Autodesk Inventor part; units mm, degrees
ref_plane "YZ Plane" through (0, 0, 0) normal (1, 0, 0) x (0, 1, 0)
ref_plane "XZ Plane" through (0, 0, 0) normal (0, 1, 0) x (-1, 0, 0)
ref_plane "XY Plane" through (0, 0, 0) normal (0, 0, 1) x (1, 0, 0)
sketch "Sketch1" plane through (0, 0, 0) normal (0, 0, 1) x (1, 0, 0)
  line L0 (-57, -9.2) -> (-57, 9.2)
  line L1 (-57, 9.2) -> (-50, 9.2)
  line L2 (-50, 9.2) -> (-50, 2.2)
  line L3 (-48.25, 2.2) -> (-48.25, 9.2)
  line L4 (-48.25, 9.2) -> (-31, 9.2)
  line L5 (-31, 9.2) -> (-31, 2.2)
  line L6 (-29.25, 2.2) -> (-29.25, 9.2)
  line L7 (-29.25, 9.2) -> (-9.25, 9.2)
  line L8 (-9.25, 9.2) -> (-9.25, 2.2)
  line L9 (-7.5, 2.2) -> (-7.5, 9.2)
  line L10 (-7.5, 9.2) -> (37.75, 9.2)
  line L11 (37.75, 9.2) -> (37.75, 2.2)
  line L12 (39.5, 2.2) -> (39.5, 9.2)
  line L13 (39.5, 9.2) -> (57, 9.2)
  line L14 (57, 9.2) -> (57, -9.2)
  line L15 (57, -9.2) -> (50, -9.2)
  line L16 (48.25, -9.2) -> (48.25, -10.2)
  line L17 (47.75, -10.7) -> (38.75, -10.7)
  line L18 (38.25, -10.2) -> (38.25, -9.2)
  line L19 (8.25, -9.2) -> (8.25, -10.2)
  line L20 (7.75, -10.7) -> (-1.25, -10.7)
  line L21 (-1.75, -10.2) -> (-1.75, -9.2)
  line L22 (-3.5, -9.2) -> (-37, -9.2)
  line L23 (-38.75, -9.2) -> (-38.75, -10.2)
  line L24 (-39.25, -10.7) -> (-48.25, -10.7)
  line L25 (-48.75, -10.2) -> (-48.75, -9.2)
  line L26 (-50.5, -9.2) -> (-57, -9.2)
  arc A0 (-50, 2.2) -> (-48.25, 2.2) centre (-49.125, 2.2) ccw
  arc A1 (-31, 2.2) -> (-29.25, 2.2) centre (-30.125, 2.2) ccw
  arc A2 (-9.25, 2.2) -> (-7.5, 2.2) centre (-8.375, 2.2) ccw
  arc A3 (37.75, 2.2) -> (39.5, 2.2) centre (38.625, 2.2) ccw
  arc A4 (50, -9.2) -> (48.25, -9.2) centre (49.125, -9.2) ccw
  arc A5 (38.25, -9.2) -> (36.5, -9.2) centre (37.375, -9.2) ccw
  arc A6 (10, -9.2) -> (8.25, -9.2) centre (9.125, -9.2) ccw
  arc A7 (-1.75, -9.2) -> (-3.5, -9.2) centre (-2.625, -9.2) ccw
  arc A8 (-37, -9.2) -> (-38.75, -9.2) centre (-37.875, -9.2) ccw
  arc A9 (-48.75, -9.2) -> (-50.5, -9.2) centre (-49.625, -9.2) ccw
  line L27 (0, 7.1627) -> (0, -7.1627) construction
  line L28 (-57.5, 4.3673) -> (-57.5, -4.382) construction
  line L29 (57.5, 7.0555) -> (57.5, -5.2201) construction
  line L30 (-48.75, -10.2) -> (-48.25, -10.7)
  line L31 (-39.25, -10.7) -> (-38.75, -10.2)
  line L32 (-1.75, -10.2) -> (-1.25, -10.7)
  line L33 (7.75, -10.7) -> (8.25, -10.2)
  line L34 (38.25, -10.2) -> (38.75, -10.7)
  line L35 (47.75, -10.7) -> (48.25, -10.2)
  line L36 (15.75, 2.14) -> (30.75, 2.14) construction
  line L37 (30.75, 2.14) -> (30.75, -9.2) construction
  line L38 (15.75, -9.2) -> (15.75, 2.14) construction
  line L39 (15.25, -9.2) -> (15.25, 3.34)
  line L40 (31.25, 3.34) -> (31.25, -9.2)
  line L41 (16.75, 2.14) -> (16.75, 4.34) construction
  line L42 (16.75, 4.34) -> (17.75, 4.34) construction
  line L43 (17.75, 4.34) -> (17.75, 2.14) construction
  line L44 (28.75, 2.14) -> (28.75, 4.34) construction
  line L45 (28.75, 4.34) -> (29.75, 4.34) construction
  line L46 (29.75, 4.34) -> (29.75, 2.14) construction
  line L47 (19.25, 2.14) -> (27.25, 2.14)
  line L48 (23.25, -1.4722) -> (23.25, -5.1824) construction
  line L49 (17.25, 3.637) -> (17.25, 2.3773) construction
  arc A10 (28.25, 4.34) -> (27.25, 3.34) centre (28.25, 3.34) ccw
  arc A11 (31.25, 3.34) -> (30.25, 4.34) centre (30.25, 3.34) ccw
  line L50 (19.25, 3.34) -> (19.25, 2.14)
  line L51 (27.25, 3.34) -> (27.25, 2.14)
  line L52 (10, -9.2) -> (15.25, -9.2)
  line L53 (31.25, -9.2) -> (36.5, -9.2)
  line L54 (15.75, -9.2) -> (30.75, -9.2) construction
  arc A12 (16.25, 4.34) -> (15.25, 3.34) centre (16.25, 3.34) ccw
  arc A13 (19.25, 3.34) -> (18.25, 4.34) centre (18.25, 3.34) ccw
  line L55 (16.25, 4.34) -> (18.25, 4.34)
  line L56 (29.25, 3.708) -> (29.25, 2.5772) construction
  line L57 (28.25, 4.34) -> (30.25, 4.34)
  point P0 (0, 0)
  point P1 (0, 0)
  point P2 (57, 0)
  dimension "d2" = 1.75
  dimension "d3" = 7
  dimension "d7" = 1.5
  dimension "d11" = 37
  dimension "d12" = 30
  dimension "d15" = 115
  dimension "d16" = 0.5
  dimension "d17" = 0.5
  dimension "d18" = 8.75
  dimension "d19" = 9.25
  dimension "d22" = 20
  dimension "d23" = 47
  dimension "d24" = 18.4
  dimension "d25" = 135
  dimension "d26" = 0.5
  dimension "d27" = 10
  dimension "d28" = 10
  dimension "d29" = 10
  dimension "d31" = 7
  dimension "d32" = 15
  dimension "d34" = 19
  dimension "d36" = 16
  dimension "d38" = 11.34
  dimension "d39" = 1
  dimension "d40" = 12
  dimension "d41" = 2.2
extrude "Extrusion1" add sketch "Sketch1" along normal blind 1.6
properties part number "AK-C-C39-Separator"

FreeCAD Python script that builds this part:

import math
import FreeCAD as App
import Part
import Sketcher
from FreeCAD import Vector

doc = App.newDocument("Part")
body = doc.addObject("PartDesign::Body", "Body")

# Sketch on XY plane
sketch1 = doc.addObject("Sketcher::SketchObject", "Sketch")
body.addObject(sketch1)
sketch1.AttachmentSupport = (doc.XY_Plane, [""])
sketch1.MapMode = "FlatFace"
sketch1.addGeometry(Part.LineSegment(Vector(-57, 9.2, 0), Vector(-57, -9.2, 0)), False)
sketch1.addGeometry(Part.LineSegment(Vector(-57, -9.2, 0), Vector(-50.5, -9.2, 0)), False)
sketch1.addGeometry(Part.ArcOfCircle(Part.Circle(Vector(-49.6, -9.2, 0), Vector(0, 0, 1), 0.9), math.radians(0), math.radians(180)), False)
sketch1.addGeometry(Part.LineSegment(Vector(-48.8, -9.2, 0), Vector(-48.8, -10.2, 0)), False)
sketch1.addGeometry(Part.LineSegment(Vector(-48.8, -10.2, 0), Vector(-48.2, -10.7, 0)), False)
sketch1.addGeometry(Part.LineSegment(Vector(-48.2, -10.7, 0), Vector(-39.2, -10.7, 0)), False)
sketch1.addGeometry(Part.LineSegment(Vector(-39.2, -10.7, 0), Vector(-38.8, -10.2, 0)), False)
sketch1.addGeometry(Part.LineSegment(Vector(-38.8, -10.2, 0), Vector(-38.8, -9.2, 0)), False)
sketch1.addGeometry(Part.ArcOfCircle(Part.Circle(Vector(-37.9, -9.2, 0), Vector(0, 0, 1), 0.9), math.radians(0), math.radians(180)), False)
sketch1.addGeometry(Part.LineSegment(Vector(-37, -9.2, 0), Vector(-3.5, -9.2, 0)), False)
sketch1.addGeometry(Part.ArcOfCircle(Part.Circle(Vector(-2.6, -9.2, 0), Vector(0, 0, 1), 0.9), math.radians(0), math.radians(180)), False)
sketch1.addGeometry(Part.LineSegment(Vector(-1.8, -9.2, 0), Vector(-1.8, -10.2, 0)), False)
sketch1.addGeometry(Part.LineSegment(Vector(-1.8, -10.2, 0), Vector(-1.2, -10.7, 0)), False)
sketch1.addGeometry(Part.LineSegment(Vector(-1.2, -10.7, 0), Vector(7.8, -10.7, 0)), False)
sketch1.addGeometry(Part.LineSegment(Vector(7.8, -10.7, 0), Vector(8.2, -10.2, 0)), False)
sketch1.addGeometry(Part.LineSegment(Vector(8.2, -10.2, 0), Vector(8.2, -9.2, 0)), False)
sketch1.addGeometry(Part.ArcOfCircle(Part.Circle(Vector(9.1, -9.2, 0), Vector(0, 0, 1), 0.9), math.radians(0), math.radians(180)), False)
sketch1.addGeometry(Part.LineSegment(Vector(10, -9.2, 0), Vector(15.2, -9.2, 0)), False)
sketch1.addGeometry(Part.LineSegment(Vector(15.2, -9.2, 0), Vector(15.2, 3.3, 0)), False)
sketch1.addGeometry(Part.ArcOfCircle(Part.Circle(Vector(16.2, 3.3, 0), Vector(0, 0, 1), 1), math.radians(90), math.radians(180)), False)
sketch1.addGeometry(Part.LineSegment(Vector(16.2, 4.3, 0), Vector(18.2, 4.3, 0)), False)
sketch1.addGeometry(Part.ArcOfCircle(Part.Circle(Vector(18.2, 3.3, 0), Vector(0, 0, 1), 1), math.radians(0), math.radians(90)), False)
sketch1.addGeometry(Part.LineSegment(Vector(19.2, 3.3, 0), Vector(19.2, 2.1, 0)), False)
sketch1.addGeometry(Part.LineSegment(Vector(19.2, 2.1, 0), Vector(27.2, 2.1, 0)), False)
sketch1.addGeometry(Part.LineSegment(Vector(27.2, 2.1, 0), Vector(27.2, 3.3, 0)), False)
sketch1.addGeometry(Part.ArcOfCircle(Part.Circle(Vector(28.2, 3.3, 0), Vector(0, 0, 1), 1), math.radians(90), math.radians(180)), False)
sketch1.addGeometry(Part.LineSegment(Vector(28.2, 4.3, 0), Vector(30.2, 4.3, 0)), False)
sketch1.addGeometry(Part.ArcOfCircle(Part.Circle(Vector(30.2, 3.3, 0), Vector(0, 0, 1), 1), math.radians(0), math.radians(90)), False)
sketch1.addGeometry(Part.LineSegment(Vector(31.2, 3.3, 0), Vector(31.2, -9.2, 0)), False)
sketch1.addGeometry(Part.LineSegment(Vector(31.2, -9.2, 0), Vector(36.5, -9.2, 0)), False)
sketch1.addGeometry(Part.ArcOfCircle(Part.Circle(Vector(37.4, -9.2, 0), Vector(0, 0, 1), 0.9), math.radians(0), math.radians(180)), False)
sketch1.addGeometry(Part.LineSegment(Vector(38.2, -9.2, 0), Vector(38.2, -10.2, 0)), False)
sketch1.addGeometry(Part.LineSegment(Vector(38.2, -10.2, 0), Vector(38.8, -10.7, 0)), False)
sketch1.addGeometry(Part.LineSegment(Vector(38.8, -10.7, 0), Vector(47.8, -10.7, 0)), False)
sketch1.addGeometry(Part.LineSegment(Vector(47.8, -10.7, 0), Vector(48.2, -10.2, 0)), False)
sketch1.addGeometry(Part.LineSegment(Vector(48.2, -10.2, 0), Vector(48.2, -9.2, 0)), False)
sketch1.addGeometry(Part.ArcOfCircle(Part.Circle(Vector(49.1, -9.2, 0), Vector(0, 0, 1), 0.9), math.radians(0), math.radians(180)), False)
sketch1.addGeometry(Part.LineSegment(Vector(50, -9.2, 0), Vector(57, -9.2, 0)), False)
sketch1.addGeometry(Part.LineSegment(Vector(57, -9.2, 0), Vector(57, 9.2, 0)), False)
sketch1.addGeometry(Part.LineSegment(Vector(57, 9.2, 0), Vector(39.5, 9.2, 0)), False)
sketch1.addGeometry(Part.LineSegment(Vector(39.5, 9.2, 0), Vector(39.5, 2.2, 0)), False)
sketch1.addGeometry(Part.ArcOfCircle(Part.Circle(Vector(38.6, 2.2, 0), Vector(0, 0, 1), 0.9), math.radians(180), math.radians(360)), False)
sketch1.addGeometry(Part.LineSegment(Vector(37.8, 2.2, 0), Vector(37.8, 9.2, 0)), False)
sketch1.addGeometry(Part.LineSegment(Vector(37.8, 9.2, 0), Vector(-7.5, 9.2, 0)), False)
sketch1.addGeometry(Part.LineSegment(Vector(-7.5, 9.2, 0), Vector(-7.5, 2.2, 0)), False)
sketch1.addGeometry(Part.ArcOfCircle(Part.Circle(Vector(-8.4, 2.2, 0), Vector(0, 0, 1), 0.9), math.radians(180), math.radians(360)), False)
sketch1.addGeometry(Part.LineSegment(Vector(-9.2, 2.2, 0), Vector(-9.2, 9.2, 0)), False)
sketch1.addGeometry(Part.LineSegment(Vector(-9.2, 9.2, 0), Vector(-29.2, 9.2, 0)), False)
sketch1.addGeometry(Part.LineSegment(Vector(-29.2, 9.2, 0), Vector(-29.2, 2.2, 0)), False)
sketch1.addGeometry(Part.ArcOfCircle(Part.Circle(Vector(-30.1, 2.2, 0), Vector(0, 0, 1), 0.9), math.radians(180), math.radians(360)), False)
sketch1.addGeometry(Part.LineSegment(Vector(-31, 2.2, 0), Vector(-31, 9.2, 0)), False)
sketch1.addGeometry(Part.LineSegment(Vector(-31, 9.2, 0), Vector(-48.2, 9.2, 0)), False)
sketch1.addGeometry(Part.LineSegment(Vector(-48.2, 9.2, 0), Vector(-48.2, 2.2, 0)), False)
sketch1.addGeometry(Part.ArcOfCircle(Part.Circle(Vector(-49.1, 2.2, 0), Vector(0, 0, 1), 0.9), math.radians(180), math.radians(360)), False)
sketch1.addGeometry(Part.LineSegment(Vector(-50, 2.2, 0), Vector(-50, 9.2, 0)), False)
sketch1.addGeometry(Part.LineSegment(Vector(-50, 9.2, 0), Vector(-57, 9.2, 0)), False)
sketch1.addConstraint(Sketcher.Constraint("Coincident", 0, 2, 1, 1))
sketch1.addConstraint(Sketcher.Constraint("Coincident", 1, 2, 2, 2))
sketch1.addConstraint(Sketcher.Constraint("Tangent", 2, 1, 3, 1))
sketch1.addConstraint(Sketcher.Constraint("Coincident", 3, 2, 4, 1))
sketch1.addConstraint(Sketcher.Constraint("Coincident", 4, 2, 5, 1))
sketch1.addConstraint(Sketcher.Constraint("Coincident", 5, 2, 6, 1))
sketch1.addConstraint(Sketcher.Constraint("Coincident", 6, 2, 7, 1))
sketch1.addConstraint(Sketcher.Constraint("Tangent", 7, 2, 8, 2))
sketch1.addConstraint(Sketcher.Constraint("Coincident", 8, 1, 9, 1))
sketch1.addConstraint(Sketcher.Constraint("Coincident", 9, 2, 10, 2))
sketch1.addConstraint(Sketcher.Constraint("Tangent", 10, 1, 11, 1))
sketch1.addConstraint(Sketcher.Constraint("Coincident", 11, 2, 12, 1))
sketch1.addConstraint(Sketcher.Constraint("Coincident", 12, 2, 13, 1))
sketch1.addConstraint(Sketcher.Constraint("Coincident", 13, 2, 14, 1))
sketch1.addConstraint(Sketcher.Constraint("Coincident", 14, 2, 15, 1))
sketch1.addConstraint(Sketcher.Constraint("Tangent", 15, 2, 16, 2))
sketch1.addConstraint(Sketcher.Constraint("Coincident", 16, 1, 17, 1))
sketch1.addConstraint(Sketcher.Constraint("Coincident", 17, 2, 18, 1))
sketch1.addConstraint(Sketcher.Constraint("Tangent", 18, 2, 19, 2))
sketch1.addConstraint(Sketcher.Constraint("Tangent", 19, 1, 20, 1))
sketch1.addConstraint(Sketcher.Constraint("Tangent", 20, 2, 21, 2))
sketch1.addConstraint(Sketcher.Constraint("Tangent", 21, 1, 22, 1))
sketch1.addConstraint(Sketcher.Constraint("Coincident", 22, 2, 23, 1))
sketch1.addConstraint(Sketcher.Constraint("Coincident", 23, 2, 24, 1))
sketch1.addConstraint(Sketcher.Constraint("Tangent", 24, 2, 25, 2))
sketch1.addConstraint(Sketcher.Constraint("Tangent", 25, 1, 26, 1))
sketch1.addConstraint(Sketcher.Constraint("Tangent", 26, 2, 27, 2))
sketch1.addConstraint(Sketcher.Constraint("Tangent", 27, 1, 28, 1))
sketch1.addConstraint(Sketcher.Constraint("Coincident", 28, 2, 29, 1))
sketch1.addConstraint(Sketcher.Constraint("Coincident", 29, 2, 30, 2))
sketch1.addConstraint(Sketcher.Constraint("Tangent", 30, 1, 31, 1))
sketch1.addConstraint(Sketcher.Constraint("Coincident", 31, 2, 32, 1))
sketch1.addConstraint(Sketcher.Constraint("Coincident", 32, 2, 33, 1))
sketch1.addConstraint(Sketcher.Constraint("Coincident", 33, 2, 34, 1))
sketch1.addConstraint(Sketcher.Constraint("Coincident", 34, 2, 35, 1))
sketch1.addConstraint(Sketcher.Constraint("Tangent", 35, 2, 36, 2))
sketch1.addConstraint(Sketcher.Constraint("Coincident", 36, 1, 37, 1))
sketch1.addConstraint(Sketcher.Constraint("Coincident", 37, 2, 38, 1))
sketch1.addConstraint(Sketcher.Constraint("Coincident", 38, 2, 39, 1))
sketch1.addConstraint(Sketcher.Constraint("Coincident", 39, 2, 40, 1))
sketch1.addConstraint(Sketcher.Constraint("Tangent", 40, 2, 41, 2))
sketch1.addConstraint(Sketcher.Constraint("Tangent", 41, 1, 42, 1))
sketch1.addConstraint(Sketcher.Constraint("Coincident", 42, 2, 43, 1))
sketch1.addConstraint(Sketcher.Constraint("Coincident", 43, 2, 44, 1))
sketch1.addConstraint(Sketcher.Constraint("Tangent", 44, 2, 45, 2))
sketch1.addConstraint(Sketcher.Constraint("Tangent", 45, 1, 46, 1))
sketch1.addConstraint(Sketcher.Constraint("Coincident", 46, 2, 47, 1))
sketch1.addConstraint(Sketcher.Constraint("Coincident", 47, 2, 48, 1))
sketch1.addConstraint(Sketcher.Constraint("Tangent", 48, 2, 49, 2))
sketch1.addConstraint(Sketcher.Constraint("Tangent", 49, 1, 50, 1))
sketch1.addConstraint(Sketcher.Constraint("Coincident", 50, 2, 51, 1))
sketch1.addConstraint(Sketcher.Constraint("Coincident", 51, 2, 52, 1))
sketch1.addConstraint(Sketcher.Constraint("Tangent", 52, 2, 53, 2))
sketch1.addConstraint(Sketcher.Constraint("Tangent", 53, 1, 54, 1))
sketch1.addConstraint(Sketcher.Constraint("Coincident", 54, 2, 55, 1))
sketch1.addConstraint(Sketcher.Constraint("Coincident", 55, 2, 0, 1))
sketch1.addConstraint(Sketcher.Constraint("Vertical", 0))
sketch1.addConstraint(Sketcher.Constraint("Horizontal", 1))
sketch1.addConstraint(Sketcher.Constraint("Vertical", 3))
sketch1.addConstraint(Sketcher.Constraint("Horizontal", 5))
sketch1.addConstraint(Sketcher.Constraint("Vertical", 7))
sketch1.addConstraint(Sketcher.Constraint("Horizontal", 9))
sketch1.addConstraint(Sketcher.Constraint("Vertical", 11))
sketch1.addConstraint(Sketcher.Constraint("Horizontal", 13))
sketch1.addConstraint(Sketcher.Constraint("Vertical", 15))
sketch1.addConstraint(Sketcher.Constraint("Horizontal", 17))
sketch1.addConstraint(Sketcher.Constraint("Vertical", 18))
sketch1.addConstraint(Sketcher.Constraint("Horizontal", 20))
sketch1.addConstraint(Sketcher.Constraint("Vertical", 22))
sketch1.addConstraint(Sketcher.Constraint("Horizontal", 23))
sketch1.addConstraint(Sketcher.Constraint("Vertical", 24))
sketch1.addConstraint(Sketcher.Constraint("Horizontal", 26))
sketch1.addConstraint(Sketcher.Constraint("Vertical", 28))
sketch1.addConstraint(Sketcher.Constraint("Horizontal", 29))
sketch1.addConstraint(Sketcher.Constraint("Vertical", 31))
sketch1.addConstraint(Sketcher.Constraint("Horizontal", 33))
sketch1.addConstraint(Sketcher.Constraint("Vertical", 35))
sketch1.addConstraint(Sketcher.Constraint("Horizontal", 37))
sketch1.addConstraint(Sketcher.Constraint("Vertical", 38))
sketch1.addConstraint(Sketcher.Constraint("Horizontal", 39))
sketch1.addConstraint(Sketcher.Constraint("Vertical", 40))
sketch1.addConstraint(Sketcher.Constraint("Vertical", 42))
sketch1.addConstraint(Sketcher.Constraint("Horizontal", 43))
sketch1.addConstraint(Sketcher.Constraint("Vertical", 44))
sketch1.addConstraint(Sketcher.Constraint("Vertical", 46))
sketch1.addConstraint(Sketcher.Constraint("Horizontal", 47))
sketch1.addConstraint(Sketcher.Constraint("Vertical", 48))
sketch1.addConstraint(Sketcher.Constraint("Vertical", 50))
sketch1.addConstraint(Sketcher.Constraint("Horizontal", 51))
sketch1.addConstraint(Sketcher.Constraint("Vertical", 52))
sketch1.addConstraint(Sketcher.Constraint("Vertical", 54))
sketch1.addConstraint(Sketcher.Constraint("Horizontal", 55))
sketch1.addConstraint(Sketcher.Constraint("Equal", 2, 8))
sketch1.addConstraint(Sketcher.Constraint("Equal", 8, 10))
sketch1.addConstraint(Sketcher.Constraint("Equal", 10, 16))
sketch1.addConstraint(Sketcher.Constraint("Equal", 19, 21))
sketch1.addConstraint(Sketcher.Constraint("Equal", 21, 25))
sketch1.addConstraint(Sketcher.Constraint("Equal", 25, 27))
sketch1.addConstraint(Sketcher.Constraint("Equal", 16, 30))
sketch1.addConstraint(Sketcher.Constraint("Equal", 30, 36))
sketch1.addConstraint(Sketcher.Constraint("Equal", 36, 41))
sketch1.addConstraint(Sketcher.Constraint("Equal", 41, 45))
sketch1.addConstraint(Sketcher.Constraint("Equal", 45, 49))
sketch1.addConstraint(Sketcher.Constraint("Equal", 49, 53))
sketch1.addConstraint(Sketcher.Constraint("Symmetric", 0, 2, 38, 2, -1, 1))
sketch1.addConstraint(Sketcher.Constraint("Symmetric", 35, 2, 51, 2, -1, 1))
sketch1.addConstraint(Sketcher.Constraint("Perpendicular", 4, 6))
sketch1.addConstraint(Sketcher.Constraint("Perpendicular", 6, 12))
sketch1.addConstraint(Sketcher.Constraint("Perpendicular", 12, 14))
sketch1.addConstraint(Sketcher.Constraint("Perpendicular", 14, 32))
sketch1.addConstraint(Sketcher.Constraint("Perpendicular", 32, 34))
sketch1.addConstraint(Sketcher.Constraint("Horizontal", 2, 3, 8, 3))
sketch1.addConstraint(Sketcher.Constraint("Horizontal", 8, 3, 10, 3))
sketch1.addConstraint(Sketcher.Constraint("Horizontal", 10, 3, 16, 3))
sketch1.addConstraint(Sketcher.Constraint("Horizontal", 21, 3, 25, 3))
sketch1.addConstraint(Sketcher.Constraint("Horizontal", 16, 3, 30, 3))
sketch1.addConstraint(Sketcher.Constraint("Horizontal", 30, 3, 36, 3))
sketch1.addConstraint(Sketcher.Constraint("Horizontal", 41, 3, 45, 3))
sketch1.addConstraint(Sketcher.Constraint("Horizontal", 45, 3, 49, 3))
sketch1.addConstraint(Sketcher.Constraint("Horizontal", 49, 3, 53, 3))
sketch1.addConstraint(Sketcher.Constraint("Horizontal", 36, 3, 0, 2))
sketch1.addConstraint(Sketcher.Constraint("Horizontal", 3, 2, 6, 2))
sketch1.addConstraint(Sketcher.Constraint("Horizontal", 7, 2, 8, 1))
sketch1.addConstraint(Sketcher.Constraint("Horizontal", 6, 2, 11, 2))
sketch1.addConstraint(Sketcher.Constraint("Horizontal", 5, 2, 12, 2))
sketch1.addConstraint(Sketcher.Constraint("Horizontal", 11, 2, 14, 2))
sketch1.addConstraint(Sketcher.Constraint("Horizontal", 15, 2, 16, 1))
sketch1.addConstraint(Sketcher.Constraint("Horizontal", 17, 2, 28, 2))
sketch1.addConstraint(Sketcher.Constraint("Horizontal", 14, 2, 31, 2))
sketch1.addConstraint(Sketcher.Constraint("Horizontal", 13, 2, 32, 2))
sketch1.addConstraint(Sketcher.Constraint("Horizontal", 31, 2, 34, 2))
sketch1.addConstraint(Sketcher.Constraint("Horizontal", 35, 2, 36, 1))
sketch1.addConstraint(Sketcher.Constraint("Horizontal", 39, 2, 42, 2))
sketch1.addConstraint(Sketcher.Constraint("Horizontal", 43, 2, 46, 2))
sketch1.addConstraint(Sketcher.Constraint("Horizontal", 51, 2, 54, 2))
sketch1.addConstraint(Sketcher.Constraint("Vertical", 4, 2, 51, 2))
sketch1.addConstraint(Sketcher.Constraint("Equal", 5, 13))
sketch1.addConstraint(Sketcher.Constraint("Equal", 20, 26))
sketch1.addConstraint(Sketcher.Constraint("Equal", 17, 29))
sketch1.addConstraint(Sketcher.Constraint("Equal", 13, 33))
sketch1.addConstraint(Sketcher.Constraint("Equal", 55, 40))
sketch1.addConstraint(Sketcher.Constraint("Equal", 4, 6))
sketch1.addConstraint(Sketcher.Constraint("Radius", 19, 1.0))
sketch1.addConstraint(Sketcher.Constraint("DistanceX", 37, 1, 37, 2, 7.0))
sketch1.addConstraint(Sketcher.Constraint("DistanceX", 47, 2, 47, 1, 20.0))
sketch1.addConstraint(Sketcher.Constraint("DistanceY", 3, 2, 3, 1, 1.0))
sketch1.addConstraint(Sketcher.Constraint("DistanceY", 0, 2, 0, 1, 18.4))
sketch1.addConstraint(Sketcher.Constraint("DistanceX", 8, 1, -1, 1, 37.0))
sketch1.addConstraint(Sketcher.Constraint("DistanceX", -1, 1, 16, 1, 10.0))
sketch1.addConstraint(Sketcher.Constraint("Radius", 2, 0.875))
sketch1.addConstraint(Sketcher.Constraint("DistanceX", 5, 1, 5, 2, 9.0))
sketch1.addConstraint(Sketcher.Constraint("DistanceX", 20, 1, 20, 2, 2.0))
sketch1.addConstraint(Sketcher.Constraint("DistanceX", 23, 1, 23, 2, 8.0))
sketch1.addConstraint(Sketcher.Constraint("DistanceX", 10, 1, -1, 1, 1.75))
sketch1.addConstraint(Sketcher.Constraint("DistanceX", 45, 1, -1, 1, 9.25))
sketch1.addConstraint(Sketcher.Constraint("DistanceX", 39, 2, 39, 1, 17.5))
sketch1.addConstraint(Sketcher.Constraint("DistanceY", 22, 2, 22, 1, 1.2))
sketch1.addConstraint(Sketcher.Constraint("DistanceY", 18, 1, 18, 2, 12.54))
pad1 = doc.addObject("PartDesign::Pad", "Pad")
body.addObject(pad1)
pad1.Profile = sketch1
pad1.Length = 1.6

doc.recompute()
